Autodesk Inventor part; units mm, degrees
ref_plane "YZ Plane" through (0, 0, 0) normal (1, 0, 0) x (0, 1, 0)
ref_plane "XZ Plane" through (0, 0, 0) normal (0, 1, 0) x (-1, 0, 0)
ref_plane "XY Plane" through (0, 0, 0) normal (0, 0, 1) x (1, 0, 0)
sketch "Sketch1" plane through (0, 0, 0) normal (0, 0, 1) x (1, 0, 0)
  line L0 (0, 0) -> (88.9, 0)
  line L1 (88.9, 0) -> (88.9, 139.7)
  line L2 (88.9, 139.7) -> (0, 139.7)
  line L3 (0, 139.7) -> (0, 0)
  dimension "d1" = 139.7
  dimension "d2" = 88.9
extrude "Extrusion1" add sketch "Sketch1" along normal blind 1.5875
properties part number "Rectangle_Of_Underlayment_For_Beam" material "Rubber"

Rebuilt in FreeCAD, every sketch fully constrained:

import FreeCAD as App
import Part
import Sketcher
from FreeCAD import Vector
Q = App.Units.Quantity


def add_polygon(sketch, points):
    """Adds a closed chain of lines whose ends are joined by coincident constraints."""
    first, n = sketch.GeometryCount, len(points)
    for a, b in zip(points, points[1:] + points[:1]):
        sketch.addGeometry(Part.LineSegment(App.Vector(*a, 0), App.Vector(*b, 0)), False)
    for i in range(n):
        sketch.addConstraint(Sketcher.Constraint("Coincident", first + i, 2, first + (i + 1) % n, 1))

doc = App.newDocument("Part")
body = doc.addObject("PartDesign::Body", "Body")

# Sketch on XY plane
sketch1 = body.newObject("Sketcher::SketchObject", "Sketch")
sketch1.AttachmentSupport = (doc.getObject("XY_Plane"), [""])
sketch1.MapMode = "FlatFace"
add_polygon(sketch1, [(0, 140), (0, 0), (89, 0), (89, 140)])  # lines 0-3
sketch1.addConstraint([
    Sketcher.Constraint("Vertical", 0),
    Sketcher.Constraint("Horizontal", 1),
    Sketcher.Constraint("Vertical", 2),
    Sketcher.Constraint("Horizontal", 3),
    Sketcher.Constraint("Coincident", 0, 2, -1, 1),
    Sketcher.Constraint("DistanceX", 1, 1, 1, 2, Q("3.5 in")),
    Sketcher.Constraint("DistanceY", 0, 2, 0, 1, Q("5.5 in")),
])
pad1 = body.newObject("PartDesign::Pad", "Pad")
pad1.Profile = sketch1
pad1.Length = Q("0.0625 in")

doc.recompute()
